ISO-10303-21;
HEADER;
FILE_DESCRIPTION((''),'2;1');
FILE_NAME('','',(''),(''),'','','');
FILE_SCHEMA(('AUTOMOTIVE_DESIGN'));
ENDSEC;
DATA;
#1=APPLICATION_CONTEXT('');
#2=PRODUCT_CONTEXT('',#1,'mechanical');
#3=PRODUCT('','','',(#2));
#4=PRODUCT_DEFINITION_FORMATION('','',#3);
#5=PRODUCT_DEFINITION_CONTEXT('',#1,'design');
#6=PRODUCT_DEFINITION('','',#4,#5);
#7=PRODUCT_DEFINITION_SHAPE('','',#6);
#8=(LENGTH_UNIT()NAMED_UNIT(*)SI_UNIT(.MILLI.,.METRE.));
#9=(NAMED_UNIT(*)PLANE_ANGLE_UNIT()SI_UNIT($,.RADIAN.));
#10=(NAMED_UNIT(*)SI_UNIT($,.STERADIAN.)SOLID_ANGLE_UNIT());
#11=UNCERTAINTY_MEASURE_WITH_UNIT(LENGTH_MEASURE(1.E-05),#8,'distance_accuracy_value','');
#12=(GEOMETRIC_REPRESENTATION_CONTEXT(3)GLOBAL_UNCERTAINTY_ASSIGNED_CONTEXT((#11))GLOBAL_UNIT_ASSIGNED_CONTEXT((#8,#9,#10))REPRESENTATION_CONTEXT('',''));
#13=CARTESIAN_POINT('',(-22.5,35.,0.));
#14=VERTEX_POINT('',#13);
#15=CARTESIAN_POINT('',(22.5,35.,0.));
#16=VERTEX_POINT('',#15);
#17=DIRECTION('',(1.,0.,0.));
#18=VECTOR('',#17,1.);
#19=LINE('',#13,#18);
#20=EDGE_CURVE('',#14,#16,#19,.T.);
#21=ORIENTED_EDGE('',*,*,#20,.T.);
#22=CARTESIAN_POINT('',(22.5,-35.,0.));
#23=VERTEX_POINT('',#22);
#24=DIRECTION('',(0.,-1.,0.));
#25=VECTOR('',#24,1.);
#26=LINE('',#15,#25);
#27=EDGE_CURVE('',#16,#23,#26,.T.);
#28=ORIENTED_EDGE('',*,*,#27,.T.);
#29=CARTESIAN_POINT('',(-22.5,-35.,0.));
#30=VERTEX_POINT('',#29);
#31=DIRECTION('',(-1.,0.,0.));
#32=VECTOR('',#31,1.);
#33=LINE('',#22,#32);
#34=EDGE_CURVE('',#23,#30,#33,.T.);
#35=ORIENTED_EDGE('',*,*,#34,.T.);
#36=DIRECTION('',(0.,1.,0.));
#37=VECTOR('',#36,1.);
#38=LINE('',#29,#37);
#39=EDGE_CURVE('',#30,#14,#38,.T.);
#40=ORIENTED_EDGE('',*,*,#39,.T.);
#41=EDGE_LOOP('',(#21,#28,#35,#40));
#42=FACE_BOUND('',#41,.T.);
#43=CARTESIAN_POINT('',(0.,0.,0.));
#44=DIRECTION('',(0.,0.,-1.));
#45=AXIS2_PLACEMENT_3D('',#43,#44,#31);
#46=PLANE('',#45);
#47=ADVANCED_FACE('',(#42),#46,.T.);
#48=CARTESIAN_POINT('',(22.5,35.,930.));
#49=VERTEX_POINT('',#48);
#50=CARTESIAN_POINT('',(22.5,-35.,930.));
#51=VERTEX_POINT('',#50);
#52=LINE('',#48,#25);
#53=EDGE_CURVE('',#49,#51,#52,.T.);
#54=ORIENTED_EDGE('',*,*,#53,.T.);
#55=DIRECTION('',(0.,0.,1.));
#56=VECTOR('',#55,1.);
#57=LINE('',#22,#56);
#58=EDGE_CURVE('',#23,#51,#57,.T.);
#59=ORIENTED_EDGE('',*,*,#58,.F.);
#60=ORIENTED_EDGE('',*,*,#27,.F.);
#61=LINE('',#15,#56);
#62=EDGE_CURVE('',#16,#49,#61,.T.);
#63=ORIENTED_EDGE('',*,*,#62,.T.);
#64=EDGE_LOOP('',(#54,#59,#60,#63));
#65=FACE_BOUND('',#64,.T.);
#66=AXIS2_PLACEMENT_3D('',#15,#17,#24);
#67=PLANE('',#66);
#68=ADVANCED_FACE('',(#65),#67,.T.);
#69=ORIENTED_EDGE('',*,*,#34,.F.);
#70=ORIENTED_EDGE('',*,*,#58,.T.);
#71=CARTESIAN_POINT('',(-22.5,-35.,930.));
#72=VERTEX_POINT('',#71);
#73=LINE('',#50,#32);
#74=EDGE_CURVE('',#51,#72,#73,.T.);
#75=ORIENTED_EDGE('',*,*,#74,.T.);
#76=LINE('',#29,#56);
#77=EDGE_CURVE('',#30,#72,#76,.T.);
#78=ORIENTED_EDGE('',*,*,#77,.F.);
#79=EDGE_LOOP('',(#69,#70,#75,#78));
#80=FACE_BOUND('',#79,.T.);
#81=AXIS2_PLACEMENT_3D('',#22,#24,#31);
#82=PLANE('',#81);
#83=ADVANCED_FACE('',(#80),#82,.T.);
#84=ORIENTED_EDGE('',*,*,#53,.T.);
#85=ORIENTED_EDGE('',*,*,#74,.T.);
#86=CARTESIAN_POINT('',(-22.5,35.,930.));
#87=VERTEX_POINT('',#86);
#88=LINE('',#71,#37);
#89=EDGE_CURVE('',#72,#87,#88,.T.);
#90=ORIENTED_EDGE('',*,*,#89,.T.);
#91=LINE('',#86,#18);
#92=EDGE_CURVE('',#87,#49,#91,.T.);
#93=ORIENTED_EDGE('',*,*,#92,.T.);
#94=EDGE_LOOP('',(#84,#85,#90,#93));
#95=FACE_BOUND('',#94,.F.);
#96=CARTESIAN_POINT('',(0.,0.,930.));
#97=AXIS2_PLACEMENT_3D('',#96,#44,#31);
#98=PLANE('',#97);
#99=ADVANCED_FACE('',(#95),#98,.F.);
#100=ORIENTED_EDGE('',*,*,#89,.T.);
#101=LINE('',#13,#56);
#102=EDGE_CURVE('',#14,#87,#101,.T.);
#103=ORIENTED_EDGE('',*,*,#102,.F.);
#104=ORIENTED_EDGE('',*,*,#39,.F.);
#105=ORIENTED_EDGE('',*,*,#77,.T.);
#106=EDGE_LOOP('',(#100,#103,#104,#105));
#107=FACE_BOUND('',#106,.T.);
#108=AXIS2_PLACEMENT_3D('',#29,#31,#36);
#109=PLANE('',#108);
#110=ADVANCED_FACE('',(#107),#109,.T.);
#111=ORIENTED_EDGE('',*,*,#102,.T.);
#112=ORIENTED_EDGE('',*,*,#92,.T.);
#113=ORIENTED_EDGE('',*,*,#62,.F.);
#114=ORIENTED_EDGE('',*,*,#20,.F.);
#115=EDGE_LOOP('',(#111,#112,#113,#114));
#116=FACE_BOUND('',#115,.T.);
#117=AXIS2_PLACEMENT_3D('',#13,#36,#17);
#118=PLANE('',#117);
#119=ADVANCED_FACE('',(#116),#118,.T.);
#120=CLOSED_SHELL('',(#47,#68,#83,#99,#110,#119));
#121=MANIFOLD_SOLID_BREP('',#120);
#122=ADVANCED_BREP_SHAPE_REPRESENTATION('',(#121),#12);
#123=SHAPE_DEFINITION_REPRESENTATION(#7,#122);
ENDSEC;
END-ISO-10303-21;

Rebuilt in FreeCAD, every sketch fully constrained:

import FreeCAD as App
import Part
import Sketcher

V = App.Vector

doc = App.newDocument("Part")
body = doc.addObject("PartDesign::Body", "Body")

# Sketch on XY plane
sketch1 = doc.addObject("Sketcher::SketchObject", "Sketch")
body.addObject(sketch1)
sketch1.AttachmentSupport = (doc.XY_Plane, [""])
sketch1.MapMode = "FlatFace"
sketch1.addGeometry(Part.LineSegment(V(22, 35, 0), V(22, -35, 0)), False)
sketch1.addGeometry(Part.LineSegment(V(22, -35, 0), V(-22, -35, 0)), False)
sketch1.addGeometry(Part.LineSegment(V(-22, -35, 0), V(-22, 35, 0)), False)
sketch1.addGeometry(Part.LineSegment(V(-22, 35, 0), V(22, 35, 0)), False)
sketch1.addConstraint(Sketcher.Constraint("Coincident", 0, 2, 1, 1))
sketch1.addConstraint(Sketcher.Constraint("Coincident", 1, 2, 2, 1))
sketch1.addConstraint(Sketcher.Constraint("Coincident", 2, 2, 3, 1))
sketch1.addConstraint(Sketcher.Constraint("Coincident", 3, 2, 0, 1))
sketch1.addConstraint(Sketcher.Constraint("Vertical", 0))
sketch1.addConstraint(Sketcher.Constraint("Horizontal", 1))
sketch1.addConstraint(Sketcher.Constraint("Vertical", 2))
sketch1.addConstraint(Sketcher.Constraint("Horizontal", 3))
sketch1.addConstraint(Sketcher.Constraint("Symmetric", 0, 2, 2, 2, -1, 1))
sketch1.addConstraint(Sketcher.Constraint("DistanceX", 1, 2, 1, 1, 45.0))
sketch1.addConstraint(Sketcher.Constraint("DistanceY", 0, 2, 0, 1, 70.0))
pad1 = doc.addObject("PartDesign::Pad", "Pad")
body.addObject(pad1)
pad1.Profile = sketch1
pad1.Length = 930

doc.recompute()
